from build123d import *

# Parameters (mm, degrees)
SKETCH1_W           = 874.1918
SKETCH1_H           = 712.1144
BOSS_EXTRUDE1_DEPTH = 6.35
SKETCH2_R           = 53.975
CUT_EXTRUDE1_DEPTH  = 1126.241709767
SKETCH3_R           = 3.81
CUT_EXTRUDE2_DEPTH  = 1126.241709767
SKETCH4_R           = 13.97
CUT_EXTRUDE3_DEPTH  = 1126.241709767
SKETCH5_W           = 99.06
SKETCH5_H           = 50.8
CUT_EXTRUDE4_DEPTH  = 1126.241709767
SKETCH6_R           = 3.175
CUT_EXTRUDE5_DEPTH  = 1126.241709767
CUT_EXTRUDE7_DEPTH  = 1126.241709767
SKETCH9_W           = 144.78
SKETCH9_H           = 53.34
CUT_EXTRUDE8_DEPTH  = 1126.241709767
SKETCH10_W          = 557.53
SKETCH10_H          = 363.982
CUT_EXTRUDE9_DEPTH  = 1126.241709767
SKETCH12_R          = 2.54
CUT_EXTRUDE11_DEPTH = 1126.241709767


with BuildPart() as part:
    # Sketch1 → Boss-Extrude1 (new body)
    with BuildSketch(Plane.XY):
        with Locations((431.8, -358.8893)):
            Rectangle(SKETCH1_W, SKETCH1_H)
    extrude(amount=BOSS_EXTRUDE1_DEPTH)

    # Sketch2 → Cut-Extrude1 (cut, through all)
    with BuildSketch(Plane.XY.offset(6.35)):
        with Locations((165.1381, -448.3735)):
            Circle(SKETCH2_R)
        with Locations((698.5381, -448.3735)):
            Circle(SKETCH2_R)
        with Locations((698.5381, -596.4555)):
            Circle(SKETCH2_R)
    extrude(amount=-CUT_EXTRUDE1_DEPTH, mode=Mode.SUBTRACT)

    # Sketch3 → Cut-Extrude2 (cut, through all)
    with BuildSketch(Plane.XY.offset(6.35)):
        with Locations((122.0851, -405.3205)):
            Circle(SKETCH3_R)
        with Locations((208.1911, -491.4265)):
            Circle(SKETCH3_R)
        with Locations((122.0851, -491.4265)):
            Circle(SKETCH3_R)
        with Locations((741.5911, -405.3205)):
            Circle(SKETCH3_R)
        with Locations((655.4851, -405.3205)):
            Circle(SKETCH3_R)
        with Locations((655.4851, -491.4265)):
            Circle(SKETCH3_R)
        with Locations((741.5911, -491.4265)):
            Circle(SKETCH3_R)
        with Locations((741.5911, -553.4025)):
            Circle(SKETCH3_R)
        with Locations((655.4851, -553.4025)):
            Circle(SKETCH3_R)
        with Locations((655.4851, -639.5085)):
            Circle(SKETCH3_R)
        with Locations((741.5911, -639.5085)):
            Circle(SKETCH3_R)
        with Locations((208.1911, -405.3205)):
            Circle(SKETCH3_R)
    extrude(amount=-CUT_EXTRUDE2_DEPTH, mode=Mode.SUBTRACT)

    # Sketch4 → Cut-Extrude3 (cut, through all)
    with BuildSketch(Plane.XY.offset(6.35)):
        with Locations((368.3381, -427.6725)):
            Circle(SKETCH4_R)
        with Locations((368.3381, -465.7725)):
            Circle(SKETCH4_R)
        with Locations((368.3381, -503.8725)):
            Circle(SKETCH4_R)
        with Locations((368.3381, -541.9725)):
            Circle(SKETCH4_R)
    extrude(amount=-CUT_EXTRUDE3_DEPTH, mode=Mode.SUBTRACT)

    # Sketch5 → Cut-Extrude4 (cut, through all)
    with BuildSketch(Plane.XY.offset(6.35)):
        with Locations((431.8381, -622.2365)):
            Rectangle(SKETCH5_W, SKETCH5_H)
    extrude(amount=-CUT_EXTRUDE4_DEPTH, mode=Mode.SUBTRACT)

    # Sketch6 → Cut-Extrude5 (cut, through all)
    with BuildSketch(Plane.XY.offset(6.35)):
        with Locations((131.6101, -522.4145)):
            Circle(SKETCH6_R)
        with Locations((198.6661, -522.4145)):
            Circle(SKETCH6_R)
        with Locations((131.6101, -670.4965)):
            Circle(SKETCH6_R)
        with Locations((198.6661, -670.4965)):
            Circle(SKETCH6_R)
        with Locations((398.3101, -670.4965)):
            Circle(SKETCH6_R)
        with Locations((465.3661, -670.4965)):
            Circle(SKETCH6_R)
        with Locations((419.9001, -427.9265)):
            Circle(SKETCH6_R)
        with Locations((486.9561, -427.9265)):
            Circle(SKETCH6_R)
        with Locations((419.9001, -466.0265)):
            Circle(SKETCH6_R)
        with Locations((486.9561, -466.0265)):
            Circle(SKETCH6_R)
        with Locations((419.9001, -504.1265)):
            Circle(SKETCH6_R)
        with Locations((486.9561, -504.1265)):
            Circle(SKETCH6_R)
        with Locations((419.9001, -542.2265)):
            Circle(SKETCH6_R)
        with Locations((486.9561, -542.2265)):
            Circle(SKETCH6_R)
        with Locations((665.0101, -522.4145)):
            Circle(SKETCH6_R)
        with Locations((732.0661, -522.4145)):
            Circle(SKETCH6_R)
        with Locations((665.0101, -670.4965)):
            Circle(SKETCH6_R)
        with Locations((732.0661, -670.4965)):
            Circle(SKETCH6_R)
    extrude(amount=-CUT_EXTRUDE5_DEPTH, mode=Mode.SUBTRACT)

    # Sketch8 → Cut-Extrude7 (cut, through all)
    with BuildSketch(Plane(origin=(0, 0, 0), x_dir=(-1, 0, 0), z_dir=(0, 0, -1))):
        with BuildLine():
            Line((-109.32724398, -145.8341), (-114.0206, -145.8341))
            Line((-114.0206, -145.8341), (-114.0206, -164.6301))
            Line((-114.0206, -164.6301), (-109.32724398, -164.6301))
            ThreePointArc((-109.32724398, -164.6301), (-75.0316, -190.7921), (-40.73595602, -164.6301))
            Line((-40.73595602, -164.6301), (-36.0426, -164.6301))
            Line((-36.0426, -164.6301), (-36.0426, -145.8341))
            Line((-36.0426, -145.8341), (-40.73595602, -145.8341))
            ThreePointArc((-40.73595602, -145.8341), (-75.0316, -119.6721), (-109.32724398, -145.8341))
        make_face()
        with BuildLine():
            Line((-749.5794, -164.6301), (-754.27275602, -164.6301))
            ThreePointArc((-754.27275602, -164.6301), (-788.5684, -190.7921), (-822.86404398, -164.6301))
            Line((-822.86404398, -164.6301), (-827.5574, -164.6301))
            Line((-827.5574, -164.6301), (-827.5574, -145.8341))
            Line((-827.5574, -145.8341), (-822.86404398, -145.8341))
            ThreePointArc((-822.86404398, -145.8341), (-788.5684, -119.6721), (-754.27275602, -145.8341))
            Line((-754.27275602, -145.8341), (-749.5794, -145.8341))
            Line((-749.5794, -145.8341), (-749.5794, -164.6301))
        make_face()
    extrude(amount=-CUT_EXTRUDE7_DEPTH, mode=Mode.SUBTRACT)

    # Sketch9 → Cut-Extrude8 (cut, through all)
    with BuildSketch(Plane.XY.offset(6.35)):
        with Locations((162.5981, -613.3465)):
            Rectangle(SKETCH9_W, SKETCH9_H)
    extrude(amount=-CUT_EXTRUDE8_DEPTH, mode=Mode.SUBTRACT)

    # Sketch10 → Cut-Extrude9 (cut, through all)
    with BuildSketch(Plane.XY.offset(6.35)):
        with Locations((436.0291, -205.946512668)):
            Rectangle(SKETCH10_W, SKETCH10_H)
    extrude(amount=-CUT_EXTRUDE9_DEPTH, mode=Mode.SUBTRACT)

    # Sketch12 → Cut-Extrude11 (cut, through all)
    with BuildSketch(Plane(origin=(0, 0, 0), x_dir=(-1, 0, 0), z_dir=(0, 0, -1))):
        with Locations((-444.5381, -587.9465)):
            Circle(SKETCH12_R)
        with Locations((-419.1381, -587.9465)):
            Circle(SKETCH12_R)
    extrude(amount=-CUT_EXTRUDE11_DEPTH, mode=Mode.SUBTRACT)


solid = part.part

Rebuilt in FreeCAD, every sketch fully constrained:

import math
import FreeCAD as App
import Part
import Sketcher

V = App.Vector
Q = App.Units.Quantity


def add_polygon(sketch, points):
    """Adds a closed chain of lines whose ends are joined by coincident constraints."""
    first, n = sketch.GeometryCount, len(points)
    for a, b in zip(points, points[1:] + points[:1]):
        sketch.addGeometry(Part.LineSegment(App.Vector(*a, 0), App.Vector(*b, 0)), False)
    for i in range(n):
        sketch.addConstraint(Sketcher.Constraint("Coincident", first + i, 2, first + (i + 1) % n, 1))

doc = App.newDocument("Part")
body = doc.addObject("PartDesign::Body", "Body")

# Sketch on XY plane
sketch1 = body.newObject("Sketcher::SketchObject", "Sketch")
sketch1.AttachmentSupport = (doc.getObject("XY_Plane"), [""])
sketch1.MapMode = "FlatFace"
add_polygon(sketch1, [(-5, -3), (-5, -715), (869, -715), (869, -3)])  # lines 0-3
sketch1.addConstraint([
    Sketcher.Constraint("Vertical", 0),
    Sketcher.Constraint("Horizontal", 1),
    Sketcher.Constraint("Vertical", 2),
    Sketcher.Constraint("Horizontal", 3),
    Sketcher.Constraint("DistanceX", 1, 1, 1, 2, Q("34.417 in")),
    Sketcher.Constraint("DistanceY", 0, 2, 0, 1, Q("28.036 in")),
    Sketcher.Constraint("DistanceX", 0, 2, -1, 1, Q("0.2085 in")),
    Sketcher.Constraint("DistanceY", 0, 2, -1, 1, Q("28.1475 in")),
])
pad1 = body.newObject("PartDesign::Pad", "Pad")
pad1.Profile = sketch1
pad1.Length = Q("0.25 in")

# Sketch on XY plane
sketch2 = body.newObject("Sketcher::SketchObject", "Sketch001")
sketch2.AttachmentSupport = (doc.getObject("XY_Plane"), [""])
sketch2.MapMode = "FlatFace"
sketch2.AttachmentOffset = App.Placement(V(0, 0, 0.25 * 25.4), App.Rotation())
sketch2.addGeometry([
    Part.Circle(V(165, -448, 0), V(0, 0, 1), 54),
    Part.Circle(V(699, -448, 0), V(0, 0, 1), 54),
    Part.Circle(V(699, -596, 0), V(0, 0, 1), 54),
], False)
sketch2.addConstraint([
    Sketcher.Constraint("Equal", 0, 1),
    Sketcher.Constraint("Equal", 1, 2),
    Sketcher.Constraint("Horizontal", 0, 3, 1, 3),
    Sketcher.Constraint("Vertical", 1, 3, 2, 3),
    Sketcher.Constraint("Diameter", 0, Q("4.25 in")),
    Sketcher.Constraint("DistanceX", 0, 3, 1, 3, Q("21 in")),
    Sketcher.Constraint("DistanceY", 2, 3, 1, 3, Q("5.83 in")),
    Sketcher.Constraint("DistanceX", -1, 1, 0, 3, Q("6.5015 in")),
    Sketcher.Constraint("DistanceY", 0, 3, -1, 1, Q("17.6525 in")),
])
pocket1 = body.newObject("PartDesign::Pocket", "Pocket")
pocket1.Profile = sketch2
pocket1.Type = "ThroughAll"

# Sketch on XY plane
sketch3 = body.newObject("Sketcher::SketchObject", "Sketch002")
sketch3.AttachmentSupport = (doc.getObject("XY_Plane"), [""])
sketch3.MapMode = "FlatFace"
sketch3.AttachmentOffset = App.Placement(V(0, 0, 0.25 * 25.4), App.Rotation())
sketch3.addGeometry([
    Part.Circle(V(122.1, -405.3, 0), V(0, 0, 1), 3.8),  # 0
    Part.Circle(V(208.2, -491.4, 0), V(0, 0, 1), 3.8),  # 1
    Part.Circle(V(122.1, -491.4, 0), V(0, 0, 1), 3.8),  # 2
    Part.Circle(V(741.6, -405.3, 0), V(0, 0, 1), 3.8),  # 3
    Part.Circle(V(655.5, -405.3, 0), V(0, 0, 1), 3.8),  # 4
    Part.Circle(V(655.5, -491.4, 0), V(0, 0, 1), 3.8),  # 5
    Part.Circle(V(741.6, -491.4, 0), V(0, 0, 1), 3.8),  # 6
    Part.Circle(V(741.6, -553.4, 0), V(0, 0, 1), 3.8),  # 7
    Part.Circle(V(655.5, -553.4, 0), V(0, 0, 1), 3.8),  # 8
    Part.Circle(V(655.5, -639.5, 0), V(0, 0, 1), 3.8),  # 9
    Part.Circle(V(741.6, -639.5, 0), V(0, 0, 1), 3.8),  # 10
    Part.Circle(V(208.2, -405.3, 0), V(0, 0, 1), 3.8),  # 11
], False)
sketch3.addConstraint([
    Sketcher.Constraint("Equal", 0, 1),
    Sketcher.Constraint("Equal", 1, 2),
    Sketcher.Constraint("Equal", 2, 3),
    Sketcher.Constraint("Equal", 3, 4),
    Sketcher.Constraint("Equal", 4, 5),
    Sketcher.Constraint("Equal", 5, 6),
    Sketcher.Constraint("Equal", 6, 7),
    Sketcher.Constraint("Equal", 7, 8),
    Sketcher.Constraint("Equal", 8, 9),
    Sketcher.Constraint("Equal", 9, 10),
    Sketcher.Constraint("Equal", 10, 11),
    Sketcher.Constraint("Horizontal", 1, 3, 2, 3),
    Sketcher.Constraint("Horizontal", 0, 3, 3, 3),
    Sketcher.Constraint("Horizontal", 3, 3, 4, 3),
    Sketcher.Constraint("Horizontal", 2, 3, 5, 3),
    Sketcher.Constraint("Horizontal", 5, 3, 6, 3),
    Sketcher.Constraint("Horizontal", 7, 3, 8, 3),
    Sketcher.Constraint("Horizontal", 9, 3, 10, 3),
    Sketcher.Constraint("Horizontal", 4, 3, 11, 3),
    Sketcher.Constraint("Vertical", 0, 3, 2, 3),
    Sketcher.Constraint("Vertical", 4, 3, 5, 3),
    Sketcher.Constraint("Vertical", 3, 3, 6, 3),
    Sketcher.Constraint("Vertical", 6, 3, 7, 3),
    Sketcher.Constraint("Vertical", 5, 3, 8, 3),
    Sketcher.Constraint("Vertical", 8, 3, 9, 3),
    Sketcher.Constraint("Vertical", 7, 3, 10, 3),
    Sketcher.Constraint("Vertical", 1, 3, 11, 3),
    Sketcher.Constraint("Diameter", 0, Q("0.3 in")),
    Sketcher.Constraint("DistanceX", 1, 3, 3, 3, Q("21 in")),
    Sketcher.Constraint("DistanceX", 0, 3, 4, 3, Q("21 in")),
    Sketcher.Constraint("DistanceX", 0, 3, 1, 3, Q("3.39 in")),
    Sketcher.Constraint("DistanceY", 1, 3, 0, 3, Q("3.39 in")),
    Sketcher.Constraint("DistanceY", 7, 3, 6, 3, Q("2.44 in")),
    Sketcher.Constraint("DistanceY", 9, 3, 8, 3, Q("3.39 in")),
    Sketcher.Constraint("DistanceX", -1, 1, 0, 3, Q("4.8065 in")),
    Sketcher.Constraint("DistanceY", 0, 3, -1, 1, Q("15.9575 in")),
])
pocket2 = body.newObject("PartDesign::Pocket", "Pocket001")
pocket2.Profile = sketch3
pocket2.Type = "ThroughAll"

# Sketch on XY plane
sketch4 = body.newObject("Sketcher::SketchObject", "Sketch003")
sketch4.AttachmentSupport = (doc.getObject("XY_Plane"), [""])
sketch4.MapMode = "FlatFace"
sketch4.AttachmentOffset = App.Placement(V(0, 0, 0.25 * 25.4), App.Rotation())
sketch4.addGeometry([
    Part.Circle(V(368, -428, 0), V(0, 0, 1), 14),
    Part.Circle(V(368, -466, 0), V(0, 0, 1), 14),
    Part.Circle(V(368, -504, 0), V(0, 0, 1), 14),
    Part.Circle(V(368, -542, 0), V(0, 0, 1), 14),
], False)
sketch4.addConstraint([
    Sketcher.Constraint("Equal", 0, 1),
    Sketcher.Constraint("Equal", 1, 2),
    Sketcher.Constraint("Equal", 2, 3),
    Sketcher.Constraint("Vertical", 0, 3, 1, 3),
    Sketcher.Constraint("Vertical", 1, 3, 2, 3),
    Sketcher.Constraint("Vertical", 2, 3, 3, 3),
    Sketcher.Constraint("Diameter", 0, Q("1.1 in")),
    Sketcher.Constraint("DistanceY", 2, 3, 0, 3, Q("3 in")),
    Sketcher.Constraint("DistanceY", 3, 3, 1, 3, Q("3 in")),
    Sketcher.Constraint("DistanceY", 1, 3, 0, 3, Q("1.5 in")),
    Sketcher.Constraint("DistanceX", -1, 1, 0, 3, Q("14.5015 in")),
    Sketcher.Constraint("DistanceY", 0, 3, -1, 1, Q("16.8375 in")),
])
pocket3 = body.newObject("PartDesign::Pocket", "Pocket002")
pocket3.Profile = sketch4
pocket3.Type = "ThroughAll"

# Sketch on XY plane
sketch5 = body.newObject("Sketcher::SketchObject", "Sketch004")
sketch5.AttachmentSupport = (doc.getObject("XY_Plane"), [""])
sketch5.MapMode = "FlatFace"
sketch5.AttachmentOffset = App.Placement(V(0, 0, 0.25 * 25.4), App.Rotation())
add_polygon(sketch5, [(382, -597), (382, -648), (481, -648), (481, -597)])  # lines 0-3
sketch5.addConstraint([
    Sketcher.Constraint("Vertical", 0),
    Sketcher.Constraint("Horizontal", 1),
    Sketcher.Constraint("Vertical", 2),
    Sketcher.Constraint("Horizontal", 3),
    Sketcher.Constraint("DistanceY", 0, 2, 0, 1, Q("2 in")),
    Sketcher.Constraint("DistanceX", 1, 1, 1, 2, Q("3.9 in")),
    Sketcher.Constraint("DistanceX", -1, 1, 0, 2, Q("15.0515 in")),
    Sketcher.Constraint("DistanceY", 0, 2, -1, 1, Q("25.4975 in")),
])
pocket4 = body.newObject("PartDesign::Pocket", "Pocket003")
pocket4.Profile = sketch5
pocket4.Type = "ThroughAll"

# Sketch on XY plane
sketch6 = body.newObject("Sketcher::SketchObject", "Sketch005")
sketch6.AttachmentSupport = (doc.getObject("XY_Plane"), [""])
sketch6.MapMode = "FlatFace"
sketch6.AttachmentOffset = App.Placement(V(0, 0, 0.25 * 25.4), App.Rotation())
sketch6.addGeometry([
    Part.Circle(V(131.6, -522.4, 0), V(0, 0, 1), 3.2),  # 0
    Part.Circle(V(198.7, -522.4, 0), V(0, 0, 1), 3.2),  # 1
    Part.Circle(V(131.6, -670.5, 0), V(0, 0, 1), 3.2),  # 2
    Part.Circle(V(198.7, -670.5, 0), V(0, 0, 1), 3.2),  # 3
    Part.Circle(V(398.3, -670.5, 0), V(0, 0, 1), 3.2),  # 4
    Part.Circle(V(465.4, -670.5, 0), V(0, 0, 1), 3.2),  # 5
    Part.Circle(V(419.9, -427.9, 0), V(0, 0, 1), 3.2),  # 6
    Part.Circle(V(487, -427.9, 0), V(0, 0, 1), 3.2),  # 7
    Part.Circle(V(419.9, -466, 0), V(0, 0, 1), 3.2),  # 8
    Part.Circle(V(487, -466, 0), V(0, 0, 1), 3.2),  # 9
    Part.Circle(V(419.9, -504.1, 0), V(0, 0, 1), 3.2),  # 10
    Part.Circle(V(487, -504.1, 0), V(0, 0, 1), 3.2),  # 11
    Part.Circle(V(419.9, -542.2, 0), V(0, 0, 1), 3.2),  # 12
    Part.Circle(V(487, -542.2, 0), V(0, 0, 1), 3.2),  # 13
    Part.Circle(V(665, -522.4, 0), V(0, 0, 1), 3.2),  # 14
    Part.Circle(V(732.1, -522.4, 0), V(0, 0, 1), 3.2),  # 15
    Part.Circle(V(665, -670.5, 0), V(0, 0, 1), 3.2),  # 16
    Part.Circle(V(732.1, -670.5, 0), V(0, 0, 1), 3.2),  # 17
], False)
sketch6.addConstraint([
    Sketcher.Constraint("Equal", 0, 1),
    Sketcher.Constraint("Equal", 1, 2),
    Sketcher.Constraint("Equal", 2, 3),
    Sketcher.Constraint("Equal", 3, 4),
    Sketcher.Constraint("Equal", 4, 5),
    Sketcher.Constraint("Equal", 5, 6),
    Sketcher.Constraint("Equal", 6, 7),
    Sketcher.Constraint("Equal", 7, 8),
    Sketcher.Constraint("Equal", 8, 9),
    Sketcher.Constraint("Equal", 9, 10),
    Sketcher.Constraint("Equal", 10, 11),
    Sketcher.Constraint("Equal", 11, 12),
    Sketcher.Constraint("Equal", 12, 13),
    Sketcher.Constraint("Equal", 13, 14),
    Sketcher.Constraint("Equal", 14, 15),
    Sketcher.Constraint("Equal", 15, 16),
    Sketcher.Constraint("Equal", 16, 17),
    Sketcher.Constraint("Horizontal", 0, 3, 1, 3),
    Sketcher.Constraint("Horizontal", 2, 3, 3, 3),
    Sketcher.Constraint("Horizontal", 3, 3, 4, 3),
    Sketcher.Constraint("Horizontal", 4, 3, 5, 3),
    Sketcher.Constraint("Horizontal", 6, 3, 7, 3),
    Sketcher.Constraint("Horizontal", 8, 3, 9, 3),
    Sketcher.Constraint("Horizontal", 10, 3, 11, 3),
    Sketcher.Constraint("Horizontal", 12, 3, 13, 3),
    Sketcher.Constraint("Horizontal", 1, 3, 14, 3),
    Sketcher.Constraint("Horizontal", 14, 3, 15, 3),
    Sketcher.Constraint("Horizontal", 5, 3, 16, 3),
    Sketcher.Constraint("Horizontal", 16, 3, 17, 3),
    Sketcher.Constraint("Vertical", 0, 3, 2, 3),
    Sketcher.Constraint("Vertical", 1, 3, 3, 3),
    Sketcher.Constraint("Vertical", 6, 3, 8, 3),
    Sketcher.Constraint("Vertical", 7, 3, 9, 3),
    Sketcher.Constraint("Vertical", 8, 3, 10, 3),
    Sketcher.Constraint("Vertical", 9, 3, 11, 3),
    Sketcher.Constraint("Vertical", 10, 3, 12, 3),
    Sketcher.Constraint("Vertical", 11, 3, 13, 3),
    Sketcher.Constraint("Vertical", 14, 3, 16, 3),
    Sketcher.Constraint("Vertical", 15, 3, 17, 3),
    Sketcher.Constraint("Diameter", 0, Q("0.25 in")),
    Sketcher.Constraint("DistanceY", 10, 3, 6, 3, Q("3 in")),
    Sketcher.Constraint("DistanceY", 12, 3, 8, 3, Q("3 in")),
    Sketcher.Constraint("DistanceX", 2, 3, 4, 3, Q("10.5 in")),
    Sketcher.Constraint("DistanceX", 3, 3, 5, 3, Q("10.5 in")),
    Sketcher.Constraint("DistanceY", 8, 3, 6, 3, Q("1.5 in")),
    Sketcher.Constraint("DistanceX", 5, 3, 17, 3, Q("10.5 in")),
    Sketcher.Constraint("DistanceX", 0, 3, 1, 3, Q("2.64 in")),
    Sketcher.Constraint("DistanceY", 2, 3, 0, 3, Q("5.83 in")),
    Sketcher.Constraint("DistanceX", 1, 3, 6, 3, Q("8.71 in")),
    Sketcher.Constraint("DistanceY", 1, 3, 6, 3, Q("3.72 in")),
    Sketcher.Constraint("DistanceX", 6, 3, 7, 3, Q("2.64 in")),
    Sketcher.Constraint("DistanceX", 11, 3, 14, 3, Q("7.01 in")),
    Sketcher.Constraint("DistanceX", -1, 1, 0, 3, Q("5.1815 in")),
    Sketcher.Constraint("DistanceY", 0, 3, -1, 1, Q("20.5675 in")),
])
pocket5 = body.newObject("PartDesign::Pocket", "Pocket004")
pocket5.Profile = sketch6
pocket5.Type = "ThroughAll"

# Sketch on XY plane
sketch7 = body.newObject("Sketcher::SketchObject", "Sketch006")
sketch7.AttachmentSupport = (doc.getObject("XY_Plane"), [""])
sketch7.MapMode = "FlatFace"
sketch7.addGeometry([
    Part.LineSegment(V(109.3, -145.8, 0), V(114, -145.8, 0)),  # 0
    Part.LineSegment(V(114, -145.8, 0), V(114, -164.6, 0)),  # 1
    Part.LineSegment(V(114, -164.6, 0), V(109.3, -164.6, 0)),  # 2
    Part.ArcOfCircle(Part.Circle(V(75, -155.2, 0), V(0, 0, 1), 35.6), math.radians(-165), math.radians(-15)),  # 3
    Part.LineSegment(V(40.7, -164.6, 0), V(36, -164.6, 0)),  # 4
    Part.LineSegment(V(36, -164.6, 0), V(36, -145.8, 0)),  # 5
    Part.LineSegment(V(36, -145.8, 0), V(40.7, -145.8, 0)),  # 6
    Part.ArcOfCircle(Part.Circle(V(75, -155.2, 0), V(0, 0, 1), 35.6), math.radians(15), math.radians(165)),  # 7
    Part.LineSegment(V(754.3, -164.6, 0), V(749.6, -164.6, 0)),  # 8
    Part.LineSegment(V(749.6, -164.6, 0), V(749.6, -145.8, 0)),  # 9
    Part.LineSegment(V(749.6, -145.8, 0), V(754.3, -145.8, 0)),  # 10
    Part.ArcOfCircle(Part.Circle(V(788.6, -155.2, 0), V(0, 0, 1), 35.6), math.radians(15), math.radians(165)),  # 11
    Part.LineSegment(V(822.9, -145.8, 0), V(827.6, -145.8, 0)),  # 12
    Part.LineSegment(V(827.6, -145.8, 0), V(827.6, -164.6, 0)),  # 13
    Part.LineSegment(V(827.6, -164.6, 0), V(822.9, -164.6, 0)),  # 14
    Part.ArcOfCircle(Part.Circle(V(788.6, -155.2, 0), V(0, 0, 1), 35.6), math.radians(-165), math.radians(-15)),  # 15
], False)
sketch7.addConstraint([
    Sketcher.Constraint("Coincident", 0, 2, 1, 1),
    Sketcher.Constraint("Coincident", 1, 2, 2, 1),
    Sketcher.Constraint("Coincident", 2, 2, 3, 2),
    Sketcher.Constraint("Coincident", 3, 1, 4, 1),
    Sketcher.Constraint("Coincident", 4, 2, 5, 1),
    Sketcher.Constraint("Coincident", 5, 2, 6, 1),
    Sketcher.Constraint("Coincident", 6, 2, 7, 2),
    Sketcher.Constraint("Coincident", 7, 1, 0, 1),
    Sketcher.Constraint("Coincident", 8, 2, 9, 1),
    Sketcher.Constraint("Coincident", 9, 2, 10, 1),
    Sketcher.Constraint("Coincident", 10, 2, 11, 2),
    Sketcher.Constraint("Coincident", 11, 1, 12, 1),
    Sketcher.Constraint("Coincident", 12, 2, 13, 1),
    Sketcher.Constraint("Coincident", 13, 2, 14, 1),
    Sketcher.Constraint("Coincident", 14, 2, 15, 2),
    Sketcher.Constraint("Coincident", 15, 1, 8, 1),
    Sketcher.Constraint("Horizontal", 0),
    Sketcher.Constraint("Vertical", 1),
    Sketcher.Constraint("Horizontal", 2),
    Sketcher.Constraint("Horizontal", 4),
    Sketcher.Constraint("Vertical", 5),
    Sketcher.Constraint("Horizontal", 6),
    Sketcher.Constraint("Horizontal", 8),
    Sketcher.Constraint("Vertical", 9),
    Sketcher.Constraint("Horizontal", 10),
    Sketcher.Constraint("Horizontal", 12),
    Sketcher.Constraint("Vertical", 13),
    Sketcher.Constraint("Horizontal", 14),
    Sketcher.Constraint("Coincident", 7, 3, 3, 3),
    Sketcher.Constraint("Coincident", 15, 3, 11, 3),
    Sketcher.Constraint("Equal", 3, 7),
    Sketcher.Constraint("Equal", 7, 11),
    Sketcher.Constraint("Equal", 11, 15),
    Sketcher.Constraint("Horizontal", 7, 3, 11, 3),
    Sketcher.Constraint("Horizontal", 2, 2, 3, 1),
    Sketcher.Constraint("Horizontal", 0, 2, 5, 2),
    Sketcher.Constraint("Horizontal", 4, 2, 8, 2),
    Sketcher.Constraint("Horizontal", 7, 1, 9, 2),
    Sketcher.Constraint("Horizontal", 10, 2, 11, 1),
    Sketcher.Constraint("Horizontal", 8, 2, 13, 2),
    Sketcher.Constraint("Vertical", 3, 1, 6, 2),
    Sketcher.Constraint("Equal", 2, 4),
    Sketcher.Constraint("Equal", 6, 8),
    Sketcher.Constraint("Equal", 10, 12),
    Sketcher.Constraint("Radius", 3, Q("1.4 in")),
    Sketcher.Constraint("DistanceY", 1, 2, 1, 1, Q("0.74 in")),
    Sketcher.Constraint("DistanceX", 4, 2, 1, 2, Q("3.07 in")),
    Sketcher.Constraint("DistanceX", -1, 1, 3, 3, Q("2.954 in")),
    Sketcher.Constraint("DistanceX", -1, 1, 11, 3, Q("31.046 in")),
    Sketcher.Constraint("DistanceY", 3, 3, -1, 1, Q("6.1115 in")),
])
pocket6 = body.newObject("PartDesign::Pocket", "Pocket005")
pocket6.Profile = sketch7
pocket6.Type = "ThroughAll"
pocket6.Reversed = True

# Sketch on XY plane
sketch8 = body.newObject("Sketcher::SketchObject", "Sketch007")
sketch8.AttachmentSupport = (doc.getObject("XY_Plane"), [""])
sketch8.MapMode = "FlatFace"
sketch8.AttachmentOffset = App.Placement(V(0, 0, 0.25 * 25.4), App.Rotation())
add_polygon(sketch8, [(90, -587), (90, -640), (235, -640), (235, -587)])  # lines 0-3
sketch8.addConstraint([
    Sketcher.Constraint("Vertical", 0),
    Sketcher.Constraint("Horizontal", 1),
    Sketcher.Constraint("Vertical", 2),
    Sketcher.Constraint("Horizontal", 3),
    Sketcher.Constraint("DistanceX", 1, 1, 1, 2, Q("5.7 in")),
    Sketcher.Constraint("DistanceY", 0, 2, 0, 1, Q("2.1 in")),
    Sketcher.Constraint("DistanceX", -1, 1, 0, 2, Q("3.5515 in")),
    Sketcher.Constraint("DistanceY", 0, 2, -1, 1, Q("25.1975 in")),
])
pocket7 = body.newObject("PartDesign::Pocket", "Pocket006")
pocket7.Profile = sketch8
pocket7.Type = "ThroughAll"

# Sketch on XY plane
sketch9 = body.newObject("Sketcher::SketchObject", "Sketch008")
sketch9.AttachmentSupport = (doc.getObject("XY_Plane"), [""])
sketch9.MapMode = "FlatFace"
sketch9.AttachmentOffset = App.Placement(V(0, 0, 0.25 * 25.4), App.Rotation())
add_polygon(sketch9, [(157, -24), (157, -388), (715, -388), (715, -24)])  # lines 0-3
sketch9.addConstraint([
    Sketcher.Constraint("Vertical", 0),
    Sketcher.Constraint("Horizontal", 1),
    Sketcher.Constraint("Vertical", 2),
    Sketcher.Constraint("Horizontal", 3),
    Sketcher.Constraint("DistanceX", 1, 1, 1, 2, Q("21.95 in")),
    Sketcher.Constraint("DistanceY", 0, 2, 0, 1, Q("14.33 in")),
    Sketcher.Constraint("DistanceX", -1, 1, 0, 2, Q("6.1915 in")),
    Sketcher.Constraint("DistanceY", 0, 2, -1, 1, Q("387.937513 mm")),
])
pocket8 = body.newObject("PartDesign::Pocket", "Pocket007")
pocket8.Profile = sketch9
pocket8.Type = "ThroughAll"

# Sketch on XY plane
sketch10 = body.newObject("Sketcher::SketchObject", "Sketch009")
sketch10.AttachmentSupport = (doc.getObject("XY_Plane"), [""])
sketch10.MapMode = "FlatFace"
sketch10.addGeometry([
    Part.Circle(V(444.5, -587.9, 0), V(0, 0, 1), 2.5),
    Part.Circle(V(419.1, -587.9, 0), V(0, 0, 1), 2.5),
], False)
sketch10.addConstraint([
    Sketcher.Constraint("Equal", 0, 1),
    Sketcher.Constraint("Horizontal", 0, 3, 1, 3),
    Sketcher.Constraint("Diameter", 0, Q("0.2 in")),
    Sketcher.Constraint("DistanceX", 1, 3, 0, 3, Q("1 in")),
    Sketcher.Constraint("DistanceX", -1, 1, 0, 3, Q("17.5015 in")),
    Sketcher.Constraint("DistanceY", 0, 3, -1, 1, Q("23.1475 in")),
])
pocket9 = body.newObject("PartDesign::Pocket", "Pocket008")
pocket9.Profile = sketch10
pocket9.Type = "ThroughAll"
pocket9.Reversed = True

doc.recompute()
